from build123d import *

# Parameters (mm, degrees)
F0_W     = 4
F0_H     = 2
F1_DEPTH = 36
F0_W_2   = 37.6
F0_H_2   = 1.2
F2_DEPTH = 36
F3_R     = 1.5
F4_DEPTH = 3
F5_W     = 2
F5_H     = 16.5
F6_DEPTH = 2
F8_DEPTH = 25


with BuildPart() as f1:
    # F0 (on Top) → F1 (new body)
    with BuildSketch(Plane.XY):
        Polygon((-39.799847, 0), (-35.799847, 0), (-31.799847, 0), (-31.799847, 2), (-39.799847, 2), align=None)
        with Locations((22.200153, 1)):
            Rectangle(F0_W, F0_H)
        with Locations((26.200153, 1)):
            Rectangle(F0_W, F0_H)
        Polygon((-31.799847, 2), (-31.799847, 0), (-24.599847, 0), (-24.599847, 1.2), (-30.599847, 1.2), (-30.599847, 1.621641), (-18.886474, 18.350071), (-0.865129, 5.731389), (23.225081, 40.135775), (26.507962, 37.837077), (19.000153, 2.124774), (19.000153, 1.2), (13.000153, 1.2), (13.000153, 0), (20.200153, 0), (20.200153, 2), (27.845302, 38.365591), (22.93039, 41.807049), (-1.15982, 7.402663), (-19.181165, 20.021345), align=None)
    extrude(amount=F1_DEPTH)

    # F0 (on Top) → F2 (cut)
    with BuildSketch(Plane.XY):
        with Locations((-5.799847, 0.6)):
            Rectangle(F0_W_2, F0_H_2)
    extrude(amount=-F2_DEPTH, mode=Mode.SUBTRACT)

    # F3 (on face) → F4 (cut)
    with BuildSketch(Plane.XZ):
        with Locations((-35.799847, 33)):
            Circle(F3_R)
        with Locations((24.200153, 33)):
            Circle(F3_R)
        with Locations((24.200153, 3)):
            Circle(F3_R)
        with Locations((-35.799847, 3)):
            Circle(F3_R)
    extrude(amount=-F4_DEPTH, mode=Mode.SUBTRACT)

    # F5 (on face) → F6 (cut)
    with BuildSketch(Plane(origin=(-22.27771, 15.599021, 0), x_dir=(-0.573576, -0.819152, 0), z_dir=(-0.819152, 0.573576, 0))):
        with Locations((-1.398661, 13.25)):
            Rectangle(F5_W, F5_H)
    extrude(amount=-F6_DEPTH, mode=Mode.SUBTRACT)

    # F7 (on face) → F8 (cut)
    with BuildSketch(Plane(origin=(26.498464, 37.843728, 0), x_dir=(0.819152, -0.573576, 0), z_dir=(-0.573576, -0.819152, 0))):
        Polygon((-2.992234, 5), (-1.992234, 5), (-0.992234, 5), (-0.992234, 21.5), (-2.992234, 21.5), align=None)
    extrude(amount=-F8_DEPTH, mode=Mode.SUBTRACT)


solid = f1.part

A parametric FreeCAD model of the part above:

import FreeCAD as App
import Part
import Sketcher

V = App.Vector
Q = App.Units.Quantity


def add_polygon(sketch, points):
    """Adds a closed chain of lines whose ends are joined by coincident constraints."""
    first, n = sketch.GeometryCount, len(points)
    for a, b in zip(points, points[1:] + points[:1]):
        sketch.addGeometry(Part.LineSegment(App.Vector(*a, 0), App.Vector(*b, 0)), False)
    for i in range(n):
        sketch.addConstraint(Sketcher.Constraint("Coincident", first + i, 2, first + (i + 1) % n, 1))

doc = App.newDocument("Part")
params = doc.addObject("Spreadsheet::Sheet", "Params")
for row, (alias, value) in enumerate([
    ("sketch1_width", "6 mm"),
    ("sketch1_width2", "8 mm"),
    ("sketch1_height", "2 mm"),
    ("sketch1_length", "22 mm"),
    ("sketch1_length2", "42 mm"),
    ("pad1_length", "36 mm"),
    ("sketch2_width", "37.6 mm"),
    ("sketch2_height", "1.2 mm"),
    ("pocket1_length", "36 mm"),
    ("sketch3_diameter", "3 mm"),
    ("pocket2_length", "3 mm"),
    ("sketch4_width", "2 mm"),
    ("sketch4_height", "16.5 mm"),
    ("pocket3_length", "2 mm"),
    ("sketch5_width", "2 mm"),
    ("sketch5_height", "16.5 mm"),
    ("pocket4_length", "25 mm"),
], start=1):
    params.set(f"A{row}", alias)
    params.set(f"B{row}", "=" + value)
    params.setAlias(f"B{row}", alias)

body = doc.addObject("PartDesign::Body", "Body")

# Sketch on XY plane
sketch1 = doc.addObject("Sketcher::SketchObject", "Sketch")
body.addObject(sketch1)
sketch1.AttachmentSupport = (doc.XY_Plane, [""])
sketch1.MapMode = "FlatFace"
add_polygon(sketch1, [(-39.799847, 0), (-24.599847, 0), (-24.599847, 1.2), (-30.599847, 1.2), (-30.599847, 1.621641), (-18.886474, 18.350071), (-0.865129, 5.731389), (23.225081, 40.135775), (26.507962, 37.837077), (19.000153, 2.124774), (19.000153, 1.2), (13.000153, 1.2), (13.000153, 0), (28.200153, 0), (28.200153, 2), (20.200153, 2), (27.845302, 38.365591), (22.93039, 41.807049), (-1.15982, 7.402663), (-19.181165, 20.021345), (-31.799847, 2), (-39.799847, 2)])  # lines 0-21
sketch1.addConstraint(Sketcher.Constraint("Horizontal", 0))
sketch1.addConstraint(Sketcher.Constraint("Vertical", 1))
sketch1.addConstraint(Sketcher.Constraint("Horizontal", 2))
sketch1.addConstraint(Sketcher.Constraint("Vertical", 3))
sketch1.addConstraint(Sketcher.Constraint("Vertical", 9))
sketch1.addConstraint(Sketcher.Constraint("Horizontal", 10))
sketch1.addConstraint(Sketcher.Constraint("Vertical", 11))
sketch1.addConstraint(Sketcher.Constraint("Horizontal", 12))
sketch1.addConstraint(Sketcher.Constraint("Vertical", 13))
sketch1.addConstraint(Sketcher.Constraint("Horizontal", 14))
sketch1.addConstraint(Sketcher.Constraint("Horizontal", 20))
sketch1.addConstraint(Sketcher.Constraint("Vertical", 21))
sketch1.addConstraint(Sketcher.Constraint("PointOnObject", 0, 2, -1))
sketch1.addConstraint(Sketcher.Constraint("PointOnObject", 11, 2, -1))
sketch1.addConstraint(Sketcher.Constraint("Perpendicular", 4, 5))
sketch1.addConstraint(Sketcher.Constraint("Perpendicular", 5, 6))
sketch1.addConstraint(Sketcher.Constraint("Perpendicular", 6, 7))
sketch1.addConstraint(Sketcher.Constraint("Parallel", 8, 15))
sketch1.addConstraint(Sketcher.Constraint("Parallel", 7, 16))
sketch1.addConstraint(Sketcher.Constraint("Perpendicular", 16, 17))
sketch1.addConstraint(Sketcher.Constraint("Perpendicular", 17, 18))
sketch1.addConstraint(Sketcher.Constraint("Perpendicular", 18, 19))
sketch1.addConstraint(Sketcher.Constraint("Horizontal", 2, 2, 9, 2))
sketch1.addConstraint(Sketcher.Constraint("Horizontal", 14, 2, 19, 2))
sketch1.addConstraint(Sketcher.Constraint("Equal", 2, 10))
sketch1.addConstraint(Sketcher.Constraint("Equal", 0, 12))
sketch1.addConstraint(Sketcher.Constraint("Equal", 14, 20))
sketch1.addConstraint(Sketcher.Constraint("Equal", 6, 17))
sketch1.addConstraint(Sketcher.Constraint("Equal", 5, 18))
sketch1.addConstraint(Sketcher.Constraint("Equal", 18, 19))
sketch1.addConstraint(Sketcher.Constraint("DistanceX", 2, 2, 2, 1, 6.0))
sketch1.addConstraint(Sketcher.Constraint("DistanceX", 14, 2, 14, 1, 8.0))
sketch1.addConstraint(Sketcher.Constraint("DistanceY", 13, 1, 13, 2, 2.0))
sketch1.addConstraint(Sketcher.Constraint("Angle", 4, Q("55 deg")))
sketch1.addConstraint(Sketcher.Constraint("Distance", 5, 22.0))
sketch1.addConstraint(Sketcher.Constraint("Distance", 6, 42.0))
sketch1.addConstraint(Sketcher.Constraint("Distance", 16, 5.999999))
sketch1.addConstraint(Sketcher.Constraint("DistanceX", 0, 1, 0, 2, 15.2))
sketch1.addConstraint(Sketcher.Constraint("DistanceY", 1, 1, 1, 2, 1.2))
sketch1.addConstraint(Sketcher.Constraint("DistanceX", 1, 2, 8, 2, 43.6))
sketch1.addConstraint(Sketcher.Constraint("DistanceY", 8, 2, 6, 2, 38.011001))
sketch1.addConstraint(Sketcher.Constraint("DistanceY", 3, 1, 3, 2, 0.421641))
sketch1.addConstraint(Sketcher.Constraint("DistanceX", -1, 1, 15, 2, 27.845302))
sketch1.addConstraint(Sketcher.Constraint("DistanceY", 7, 2, 6, 2, 2.298698))
sketch1.setExpression("Constraints[52]", "Params.sketch1_width")
sketch1.setExpression("Constraints[53]", "Params.sketch1_width2")
sketch1.setExpression("Constraints[54]", "Params.sketch1_height")
sketch1.setExpression("Constraints[56]", "Params.sketch1_length")
sketch1.setExpression("Constraints[57]", "Params.sketch1_length2")
pad1 = doc.addObject("PartDesign::Pad", "Pad")
body.addObject(pad1)
pad1.Profile = sketch1
pad1.setExpression("Length", "Params.pad1_length")

# Sketch on XY plane
sketch2 = doc.addObject("Sketcher::SketchObject", "Sketch001")
body.addObject(sketch2)
sketch2.AttachmentSupport = (doc.XY_Plane, [""])
sketch2.MapMode = "FlatFace"
add_polygon(sketch2, [(-24.599847, 1.2), (-24.599847, 0), (13.000153, 0), (13.000153, 1.2)])  # lines 0-3
sketch2.addConstraint(Sketcher.Constraint("Vertical", 0))
sketch2.addConstraint(Sketcher.Constraint("Horizontal", 1))
sketch2.addConstraint(Sketcher.Constraint("Vertical", 2))
sketch2.addConstraint(Sketcher.Constraint("Horizontal", 3))
sketch2.addConstraint(Sketcher.Constraint("PointOnObject", 0, 2, -1))
sketch2.addConstraint(Sketcher.Constraint("DistanceX", 1, 1, 1, 2, 37.6))
sketch2.addConstraint(Sketcher.Constraint("DistanceY", 0, 2, 0, 1, 1.2))
sketch2.addConstraint(Sketcher.Constraint("DistanceX", 0, 2, -1, 1, 24.599847))
sketch2.setExpression("Constraints[9]", "Params.sketch2_width")
sketch2.setExpression("Constraints[10]", "Params.sketch2_height")
pocket1 = doc.addObject("PartDesign::Pocket", "Pocket")
body.addObject(pocket1)
pocket1.Profile = sketch2
pocket1.setExpression("Length", "Params.pocket1_length")

# Sketch on XZ plane
sketch3 = doc.addObject("Sketcher::SketchObject", "Sketch002")
body.addObject(sketch3)
sketch3.AttachmentSupport = (doc.XZ_Plane, [""])
sketch3.MapMode = "FlatFace"
sketch3.addGeometry(Part.Circle(V(-35.799847, 33, 0), V(0, 0, 1), 1.5), False)
sketch3.addGeometry(Part.Circle(V(24.200153, 33, 0), V(0, 0, 1), 1.5), False)
sketch3.addGeometry(Part.Circle(V(24.200153, 3, 0), V(0, 0, 1), 1.5), False)
sketch3.addGeometry(Part.Circle(V(-35.799847, 3, 0), V(0, 0, 1), 1.5), False)
sketch3.addConstraint(Sketcher.Constraint("Equal", 0, 1))
sketch3.addConstraint(Sketcher.Constraint("Equal", 1, 2))
sketch3.addConstraint(Sketcher.Constraint("Equal", 2, 3))
sketch3.addConstraint(Sketcher.Constraint("Horizontal", 0, 3, 1, 3))
sketch3.addConstraint(Sketcher.Constraint("Horizontal", 2, 3, 3, 3))
sketch3.addConstraint(Sketcher.Constraint("Vertical", 1, 3, 2, 3))
sketch3.addConstraint(Sketcher.Constraint("Vertical", 0, 3, 3, 3))
sketch3.addConstraint(Sketcher.Constraint("Diameter", 0, 3.0))
sketch3.addConstraint(Sketcher.Constraint("DistanceY", -1, 1, 0, 3, 33.0))
sketch3.addConstraint(Sketcher.Constraint("DistanceY", -1, 1, 2, 3, 3.0))
sketch3.addConstraint(Sketcher.Constraint("DistanceX", 0, 3, 1, 3, 60.0))
sketch3.addConstraint(Sketcher.Constraint("DistanceX", 0, 3, -1, 1, 35.799847))
sketch3.setExpression("Constraints[7]", "Params.sketch3_diameter")
pocket2 = doc.addObject("PartDesign::Pocket", "Pocket001")
body.addObject(pocket2)
pocket2.Profile = sketch3
pocket2.setExpression("Length", "Params.pocket2_length")

# Sketch on an angled plane
sketch4 = doc.addObject("Sketcher::SketchObject", "Sketch003")
body.addObject(sketch4)
sketch4.Placement = App.Placement(V(-22.27771, 15.599021, 0), App.Rotation(V(-0.573576164, -0.819152235, 0), V(0, 0, 1), V(-0.819152235, 0.573576164, 0), "ZXY"))
add_polygon(sketch4, [(-2.398661, 21.5), (-2.398661, 5), (-0.398661, 5), (-0.398661, 21.5)])  # lines 0-3
sketch4.addConstraint(Sketcher.Constraint("Vertical", 0))
sketch4.addConstraint(Sketcher.Constraint("Horizontal", 1))
sketch4.addConstraint(Sketcher.Constraint("Vertical", 2))
sketch4.addConstraint(Sketcher.Constraint("Horizontal", 3))
sketch4.addConstraint(Sketcher.Constraint("DistanceX", 1, 1, 1, 2, 2.0))
sketch4.addConstraint(Sketcher.Constraint("DistanceY", 0, 2, 0, 1, 16.5))
sketch4.addConstraint(Sketcher.Constraint("DistanceY", -1, 1, 0, 2, 5.0))
sketch4.addConstraint(Sketcher.Constraint("DistanceX", 0, 2, -1, 1, 2.398661))
sketch4.setExpression("Constraints[8]", "Params.sketch4_width")
sketch4.setExpression("Constraints[9]", "Params.sketch4_height")
pocket3 = doc.addObject("PartDesign::Pocket", "Pocket002")
body.addObject(pocket3)
pocket3.Profile = sketch4
pocket3.setExpression("Length", "Params.pocket3_length")

# Sketch on an angled plane
sketch5 = doc.addObject("Sketcher::SketchObject", "Sketch004")
body.addObject(sketch5)
sketch5.Placement = App.Placement(V(26.498464, 37.843728, 0), App.Rotation(V(0.819152235, -0.573576164, 0), V(0, 0, 1), V(-0.573576164, -0.819152235, 0), "ZXY"))
add_polygon(sketch5, [(-2.992234, 5), (-0.992234, 5), (-0.992234, 21.5), (-2.992234, 21.5)])  # lines 0-3
sketch5.addConstraint(Sketcher.Constraint("Horizontal", 0))
sketch5.addConstraint(Sketcher.Constraint("Vertical", 1))
sketch5.addConstraint(Sketcher.Constraint("Horizontal", 2))
sketch5.addConstraint(Sketcher.Constraint("Vertical", 3))
sketch5.addConstraint(Sketcher.Constraint("DistanceX", 0, 1, 0, 2, 2.0))
sketch5.addConstraint(Sketcher.Constraint("DistanceY", 1, 1, 1, 2, 16.5))
sketch5.addConstraint(Sketcher.Constraint("DistanceY", -1, 1, 0, 2, 5.0))
sketch5.addConstraint(Sketcher.Constraint("DistanceX", 0, 2, -1, 1, 0.992234))
sketch5.setExpression("Constraints[8]", "Params.sketch5_width")
sketch5.setExpression("Constraints[9]", "Params.sketch5_height")
pocket4 = doc.addObject("PartDesign::Pocket", "Pocket003")
body.addObject(pocket4)
pocket4.Profile = sketch5
pocket4.setExpression("Length", "Params.pocket4_length")

doc.recompute()
